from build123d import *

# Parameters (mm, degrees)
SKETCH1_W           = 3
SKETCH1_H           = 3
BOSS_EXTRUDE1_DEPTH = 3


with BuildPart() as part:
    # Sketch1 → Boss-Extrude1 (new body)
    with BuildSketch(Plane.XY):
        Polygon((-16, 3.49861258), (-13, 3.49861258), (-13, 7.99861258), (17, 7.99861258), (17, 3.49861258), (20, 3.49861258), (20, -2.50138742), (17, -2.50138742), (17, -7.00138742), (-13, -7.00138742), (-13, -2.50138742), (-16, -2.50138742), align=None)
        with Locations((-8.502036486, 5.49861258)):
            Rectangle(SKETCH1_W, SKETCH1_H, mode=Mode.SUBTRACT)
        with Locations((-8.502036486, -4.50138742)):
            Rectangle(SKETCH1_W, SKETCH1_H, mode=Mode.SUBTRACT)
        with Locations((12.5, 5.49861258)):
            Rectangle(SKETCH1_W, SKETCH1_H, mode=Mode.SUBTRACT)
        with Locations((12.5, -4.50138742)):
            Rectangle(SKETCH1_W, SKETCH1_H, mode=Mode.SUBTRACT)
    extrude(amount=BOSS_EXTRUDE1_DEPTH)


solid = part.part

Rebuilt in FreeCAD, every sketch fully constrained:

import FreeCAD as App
import Part
import Sketcher


def add_polygon(sketch, points):
    """Adds a closed chain of lines whose ends are joined by coincident constraints."""
    first, n = sketch.GeometryCount, len(points)
    for a, b in zip(points, points[1:] + points[:1]):
        sketch.addGeometry(Part.LineSegment(App.Vector(*a, 0), App.Vector(*b, 0)), False)
    for i in range(n):
        sketch.addConstraint(Sketcher.Constraint("Coincident", first + i, 2, first + (i + 1) % n, 1))

doc = App.newDocument("Part")
params = doc.addObject("Spreadsheet::Sheet", "Params")
for row, (alias, value) in enumerate([
    ("sketch1_width", "3 mm"),
    ("sketch1_width2", "30 mm"),
    ("sketch1_height", "6 mm"),
    ("sketch1_height2", "4.5 mm"),
    ("pad1_length", "3 mm"),
], start=1):
    params.set(f"A{row}", alias)
    params.set(f"B{row}", "=" + value)
    params.setAlias(f"B{row}", alias)

body = doc.addObject("PartDesign::Body", "Body")

sketch1 = doc.addObject("Sketcher::SketchObject", "Sketch")
body.addObject(sketch1)
sketch1.AttachmentSupport = (doc.XY_Plane, [""])
sketch1.MapMode = "FlatFace"
add_polygon(sketch1, [(-13, 3.498613), (-16, 3.498613), (-16, -2.501387), (-13, -2.501387), (-13, -7.001387), (17, -7.001387), (17, -2.501387), (20, -2.501387), (20, 3.498613), (17, 3.498613), (17, 7.998613), (-13, 7.998613)])
add_polygon(sketch1, [(11, -6.001387), (11, -3.001387), (14, -3.001387), (14, -6.001387)])
add_polygon(sketch1, [(-10.002036, -6.001387), (-10.002036, -3.001387), (-7.002036, -3.001387), (-7.002036, -6.001387)])
add_polygon(sketch1, [(11, 3.998613), (11, 6.998613), (14, 6.998613), (14, 3.998613)])
add_polygon(sketch1, [(-10.002036, 3.998613), (-10.002036, 6.998613), (-7.002036, 6.998613), (-7.002036, 3.998613)])
sketch1.addConstraint([
    Sketcher.Constraint("Horizontal", 0),
    Sketcher.Constraint("Vertical", 1),
    Sketcher.Constraint("Horizontal", 2),
    Sketcher.Constraint("Vertical", 3),
    Sketcher.Constraint("Horizontal", 4),
    Sketcher.Constraint("Vertical", 5),
    Sketcher.Constraint("Horizontal", 6),
    Sketcher.Constraint("Vertical", 7),
    Sketcher.Constraint("Horizontal", 8),
    Sketcher.Constraint("Vertical", 9),
    Sketcher.Constraint("Horizontal", 10),
    Sketcher.Constraint("Vertical", 11),
    Sketcher.Constraint("Vertical", 12),
    Sketcher.Constraint("Horizontal", 13),
    Sketcher.Constraint("Vertical", 14),
    Sketcher.Constraint("Horizontal", 15),
    Sketcher.Constraint("Vertical", 16),
    Sketcher.Constraint("Horizontal", 17),
    Sketcher.Constraint("Vertical", 18),
    Sketcher.Constraint("Horizontal", 19),
    Sketcher.Constraint("Vertical", 20),
    Sketcher.Constraint("Horizontal", 21),
    Sketcher.Constraint("Vertical", 22),
    Sketcher.Constraint("Horizontal", 23),
    Sketcher.Constraint("Vertical", 24),
    Sketcher.Constraint("Horizontal", 25),
    Sketcher.Constraint("Vertical", 26),
    Sketcher.Constraint("Horizontal", 27),
    Sketcher.Constraint("Horizontal", 2, 2, 5, 2),
    Sketcher.Constraint("Horizontal", 0, 2, 7, 2),
    Sketcher.Constraint("Horizontal", 13, 2, 16, 2),
    Sketcher.Constraint("Horizontal", 15, 2, 18, 2),
    Sketcher.Constraint("Horizontal", 21, 2, 24, 2),
    Sketcher.Constraint("Horizontal", 23, 2, 26, 2),
    Sketcher.Constraint("Vertical", 5, 2, 8, 2),
    Sketcher.Constraint("Vertical", 3, 2, 10, 2),
    Sketcher.Constraint("Vertical", 15, 2, 20, 2),
    Sketcher.Constraint("Vertical", 14, 2, 21, 2),
    Sketcher.Constraint("Vertical", 19, 2, 24, 2),
    Sketcher.Constraint("Vertical", 18, 2, 25, 2),
    Sketcher.Constraint("Equal", 2, 6),
    Sketcher.Constraint("Equal", 8, 13),
    Sketcher.Constraint("Equal", 15, 17),
    Sketcher.Constraint("Equal", 5, 9),
    Sketcher.Constraint("Equal", 27, 12),
    Sketcher.Constraint("Equal", 18, 20),
    Sketcher.Constraint("DistanceX", 0, 2, 0, 1, 3.0),
    Sketcher.Constraint("DistanceX", 4, 1, 4, 2, 30.0),
    Sketcher.Constraint("DistanceY", 1, 2, 1, 1, 6.0),
    Sketcher.Constraint("DistanceY", 3, 2, 3, 1, 4.5),
    Sketcher.Constraint("DistanceX", 0, 2, -1, 1, 16.0),
    Sketcher.Constraint("DistanceX", -1, 1, 12, 2, 11.0),
    Sketcher.Constraint("DistanceY", 4, 2, 12, 2, 4.0),
    Sketcher.Constraint("DistanceY", 20, 2, 9, 2, 1.0),
    Sketcher.Constraint("DistanceY", -1, 1, 0, 2, 3.498613),
    Sketcher.Constraint("DistanceX", 16, 2, -1, 1, 10.002036),
])
sketch1.setExpression("Constraints[74]", "Params.sketch1_width")
sketch1.setExpression("Constraints[75]", "Params.sketch1_width2")
sketch1.setExpression("Constraints[76]", "Params.sketch1_height")
sketch1.setExpression("Constraints[77]", "Params.sketch1_height2")
pad1 = doc.addObject("PartDesign::Pad", "Pad")
body.addObject(pad1)
pad1.Profile = sketch1
pad1.setExpression("Length", "Params.pad1_length")

doc.recompute()
